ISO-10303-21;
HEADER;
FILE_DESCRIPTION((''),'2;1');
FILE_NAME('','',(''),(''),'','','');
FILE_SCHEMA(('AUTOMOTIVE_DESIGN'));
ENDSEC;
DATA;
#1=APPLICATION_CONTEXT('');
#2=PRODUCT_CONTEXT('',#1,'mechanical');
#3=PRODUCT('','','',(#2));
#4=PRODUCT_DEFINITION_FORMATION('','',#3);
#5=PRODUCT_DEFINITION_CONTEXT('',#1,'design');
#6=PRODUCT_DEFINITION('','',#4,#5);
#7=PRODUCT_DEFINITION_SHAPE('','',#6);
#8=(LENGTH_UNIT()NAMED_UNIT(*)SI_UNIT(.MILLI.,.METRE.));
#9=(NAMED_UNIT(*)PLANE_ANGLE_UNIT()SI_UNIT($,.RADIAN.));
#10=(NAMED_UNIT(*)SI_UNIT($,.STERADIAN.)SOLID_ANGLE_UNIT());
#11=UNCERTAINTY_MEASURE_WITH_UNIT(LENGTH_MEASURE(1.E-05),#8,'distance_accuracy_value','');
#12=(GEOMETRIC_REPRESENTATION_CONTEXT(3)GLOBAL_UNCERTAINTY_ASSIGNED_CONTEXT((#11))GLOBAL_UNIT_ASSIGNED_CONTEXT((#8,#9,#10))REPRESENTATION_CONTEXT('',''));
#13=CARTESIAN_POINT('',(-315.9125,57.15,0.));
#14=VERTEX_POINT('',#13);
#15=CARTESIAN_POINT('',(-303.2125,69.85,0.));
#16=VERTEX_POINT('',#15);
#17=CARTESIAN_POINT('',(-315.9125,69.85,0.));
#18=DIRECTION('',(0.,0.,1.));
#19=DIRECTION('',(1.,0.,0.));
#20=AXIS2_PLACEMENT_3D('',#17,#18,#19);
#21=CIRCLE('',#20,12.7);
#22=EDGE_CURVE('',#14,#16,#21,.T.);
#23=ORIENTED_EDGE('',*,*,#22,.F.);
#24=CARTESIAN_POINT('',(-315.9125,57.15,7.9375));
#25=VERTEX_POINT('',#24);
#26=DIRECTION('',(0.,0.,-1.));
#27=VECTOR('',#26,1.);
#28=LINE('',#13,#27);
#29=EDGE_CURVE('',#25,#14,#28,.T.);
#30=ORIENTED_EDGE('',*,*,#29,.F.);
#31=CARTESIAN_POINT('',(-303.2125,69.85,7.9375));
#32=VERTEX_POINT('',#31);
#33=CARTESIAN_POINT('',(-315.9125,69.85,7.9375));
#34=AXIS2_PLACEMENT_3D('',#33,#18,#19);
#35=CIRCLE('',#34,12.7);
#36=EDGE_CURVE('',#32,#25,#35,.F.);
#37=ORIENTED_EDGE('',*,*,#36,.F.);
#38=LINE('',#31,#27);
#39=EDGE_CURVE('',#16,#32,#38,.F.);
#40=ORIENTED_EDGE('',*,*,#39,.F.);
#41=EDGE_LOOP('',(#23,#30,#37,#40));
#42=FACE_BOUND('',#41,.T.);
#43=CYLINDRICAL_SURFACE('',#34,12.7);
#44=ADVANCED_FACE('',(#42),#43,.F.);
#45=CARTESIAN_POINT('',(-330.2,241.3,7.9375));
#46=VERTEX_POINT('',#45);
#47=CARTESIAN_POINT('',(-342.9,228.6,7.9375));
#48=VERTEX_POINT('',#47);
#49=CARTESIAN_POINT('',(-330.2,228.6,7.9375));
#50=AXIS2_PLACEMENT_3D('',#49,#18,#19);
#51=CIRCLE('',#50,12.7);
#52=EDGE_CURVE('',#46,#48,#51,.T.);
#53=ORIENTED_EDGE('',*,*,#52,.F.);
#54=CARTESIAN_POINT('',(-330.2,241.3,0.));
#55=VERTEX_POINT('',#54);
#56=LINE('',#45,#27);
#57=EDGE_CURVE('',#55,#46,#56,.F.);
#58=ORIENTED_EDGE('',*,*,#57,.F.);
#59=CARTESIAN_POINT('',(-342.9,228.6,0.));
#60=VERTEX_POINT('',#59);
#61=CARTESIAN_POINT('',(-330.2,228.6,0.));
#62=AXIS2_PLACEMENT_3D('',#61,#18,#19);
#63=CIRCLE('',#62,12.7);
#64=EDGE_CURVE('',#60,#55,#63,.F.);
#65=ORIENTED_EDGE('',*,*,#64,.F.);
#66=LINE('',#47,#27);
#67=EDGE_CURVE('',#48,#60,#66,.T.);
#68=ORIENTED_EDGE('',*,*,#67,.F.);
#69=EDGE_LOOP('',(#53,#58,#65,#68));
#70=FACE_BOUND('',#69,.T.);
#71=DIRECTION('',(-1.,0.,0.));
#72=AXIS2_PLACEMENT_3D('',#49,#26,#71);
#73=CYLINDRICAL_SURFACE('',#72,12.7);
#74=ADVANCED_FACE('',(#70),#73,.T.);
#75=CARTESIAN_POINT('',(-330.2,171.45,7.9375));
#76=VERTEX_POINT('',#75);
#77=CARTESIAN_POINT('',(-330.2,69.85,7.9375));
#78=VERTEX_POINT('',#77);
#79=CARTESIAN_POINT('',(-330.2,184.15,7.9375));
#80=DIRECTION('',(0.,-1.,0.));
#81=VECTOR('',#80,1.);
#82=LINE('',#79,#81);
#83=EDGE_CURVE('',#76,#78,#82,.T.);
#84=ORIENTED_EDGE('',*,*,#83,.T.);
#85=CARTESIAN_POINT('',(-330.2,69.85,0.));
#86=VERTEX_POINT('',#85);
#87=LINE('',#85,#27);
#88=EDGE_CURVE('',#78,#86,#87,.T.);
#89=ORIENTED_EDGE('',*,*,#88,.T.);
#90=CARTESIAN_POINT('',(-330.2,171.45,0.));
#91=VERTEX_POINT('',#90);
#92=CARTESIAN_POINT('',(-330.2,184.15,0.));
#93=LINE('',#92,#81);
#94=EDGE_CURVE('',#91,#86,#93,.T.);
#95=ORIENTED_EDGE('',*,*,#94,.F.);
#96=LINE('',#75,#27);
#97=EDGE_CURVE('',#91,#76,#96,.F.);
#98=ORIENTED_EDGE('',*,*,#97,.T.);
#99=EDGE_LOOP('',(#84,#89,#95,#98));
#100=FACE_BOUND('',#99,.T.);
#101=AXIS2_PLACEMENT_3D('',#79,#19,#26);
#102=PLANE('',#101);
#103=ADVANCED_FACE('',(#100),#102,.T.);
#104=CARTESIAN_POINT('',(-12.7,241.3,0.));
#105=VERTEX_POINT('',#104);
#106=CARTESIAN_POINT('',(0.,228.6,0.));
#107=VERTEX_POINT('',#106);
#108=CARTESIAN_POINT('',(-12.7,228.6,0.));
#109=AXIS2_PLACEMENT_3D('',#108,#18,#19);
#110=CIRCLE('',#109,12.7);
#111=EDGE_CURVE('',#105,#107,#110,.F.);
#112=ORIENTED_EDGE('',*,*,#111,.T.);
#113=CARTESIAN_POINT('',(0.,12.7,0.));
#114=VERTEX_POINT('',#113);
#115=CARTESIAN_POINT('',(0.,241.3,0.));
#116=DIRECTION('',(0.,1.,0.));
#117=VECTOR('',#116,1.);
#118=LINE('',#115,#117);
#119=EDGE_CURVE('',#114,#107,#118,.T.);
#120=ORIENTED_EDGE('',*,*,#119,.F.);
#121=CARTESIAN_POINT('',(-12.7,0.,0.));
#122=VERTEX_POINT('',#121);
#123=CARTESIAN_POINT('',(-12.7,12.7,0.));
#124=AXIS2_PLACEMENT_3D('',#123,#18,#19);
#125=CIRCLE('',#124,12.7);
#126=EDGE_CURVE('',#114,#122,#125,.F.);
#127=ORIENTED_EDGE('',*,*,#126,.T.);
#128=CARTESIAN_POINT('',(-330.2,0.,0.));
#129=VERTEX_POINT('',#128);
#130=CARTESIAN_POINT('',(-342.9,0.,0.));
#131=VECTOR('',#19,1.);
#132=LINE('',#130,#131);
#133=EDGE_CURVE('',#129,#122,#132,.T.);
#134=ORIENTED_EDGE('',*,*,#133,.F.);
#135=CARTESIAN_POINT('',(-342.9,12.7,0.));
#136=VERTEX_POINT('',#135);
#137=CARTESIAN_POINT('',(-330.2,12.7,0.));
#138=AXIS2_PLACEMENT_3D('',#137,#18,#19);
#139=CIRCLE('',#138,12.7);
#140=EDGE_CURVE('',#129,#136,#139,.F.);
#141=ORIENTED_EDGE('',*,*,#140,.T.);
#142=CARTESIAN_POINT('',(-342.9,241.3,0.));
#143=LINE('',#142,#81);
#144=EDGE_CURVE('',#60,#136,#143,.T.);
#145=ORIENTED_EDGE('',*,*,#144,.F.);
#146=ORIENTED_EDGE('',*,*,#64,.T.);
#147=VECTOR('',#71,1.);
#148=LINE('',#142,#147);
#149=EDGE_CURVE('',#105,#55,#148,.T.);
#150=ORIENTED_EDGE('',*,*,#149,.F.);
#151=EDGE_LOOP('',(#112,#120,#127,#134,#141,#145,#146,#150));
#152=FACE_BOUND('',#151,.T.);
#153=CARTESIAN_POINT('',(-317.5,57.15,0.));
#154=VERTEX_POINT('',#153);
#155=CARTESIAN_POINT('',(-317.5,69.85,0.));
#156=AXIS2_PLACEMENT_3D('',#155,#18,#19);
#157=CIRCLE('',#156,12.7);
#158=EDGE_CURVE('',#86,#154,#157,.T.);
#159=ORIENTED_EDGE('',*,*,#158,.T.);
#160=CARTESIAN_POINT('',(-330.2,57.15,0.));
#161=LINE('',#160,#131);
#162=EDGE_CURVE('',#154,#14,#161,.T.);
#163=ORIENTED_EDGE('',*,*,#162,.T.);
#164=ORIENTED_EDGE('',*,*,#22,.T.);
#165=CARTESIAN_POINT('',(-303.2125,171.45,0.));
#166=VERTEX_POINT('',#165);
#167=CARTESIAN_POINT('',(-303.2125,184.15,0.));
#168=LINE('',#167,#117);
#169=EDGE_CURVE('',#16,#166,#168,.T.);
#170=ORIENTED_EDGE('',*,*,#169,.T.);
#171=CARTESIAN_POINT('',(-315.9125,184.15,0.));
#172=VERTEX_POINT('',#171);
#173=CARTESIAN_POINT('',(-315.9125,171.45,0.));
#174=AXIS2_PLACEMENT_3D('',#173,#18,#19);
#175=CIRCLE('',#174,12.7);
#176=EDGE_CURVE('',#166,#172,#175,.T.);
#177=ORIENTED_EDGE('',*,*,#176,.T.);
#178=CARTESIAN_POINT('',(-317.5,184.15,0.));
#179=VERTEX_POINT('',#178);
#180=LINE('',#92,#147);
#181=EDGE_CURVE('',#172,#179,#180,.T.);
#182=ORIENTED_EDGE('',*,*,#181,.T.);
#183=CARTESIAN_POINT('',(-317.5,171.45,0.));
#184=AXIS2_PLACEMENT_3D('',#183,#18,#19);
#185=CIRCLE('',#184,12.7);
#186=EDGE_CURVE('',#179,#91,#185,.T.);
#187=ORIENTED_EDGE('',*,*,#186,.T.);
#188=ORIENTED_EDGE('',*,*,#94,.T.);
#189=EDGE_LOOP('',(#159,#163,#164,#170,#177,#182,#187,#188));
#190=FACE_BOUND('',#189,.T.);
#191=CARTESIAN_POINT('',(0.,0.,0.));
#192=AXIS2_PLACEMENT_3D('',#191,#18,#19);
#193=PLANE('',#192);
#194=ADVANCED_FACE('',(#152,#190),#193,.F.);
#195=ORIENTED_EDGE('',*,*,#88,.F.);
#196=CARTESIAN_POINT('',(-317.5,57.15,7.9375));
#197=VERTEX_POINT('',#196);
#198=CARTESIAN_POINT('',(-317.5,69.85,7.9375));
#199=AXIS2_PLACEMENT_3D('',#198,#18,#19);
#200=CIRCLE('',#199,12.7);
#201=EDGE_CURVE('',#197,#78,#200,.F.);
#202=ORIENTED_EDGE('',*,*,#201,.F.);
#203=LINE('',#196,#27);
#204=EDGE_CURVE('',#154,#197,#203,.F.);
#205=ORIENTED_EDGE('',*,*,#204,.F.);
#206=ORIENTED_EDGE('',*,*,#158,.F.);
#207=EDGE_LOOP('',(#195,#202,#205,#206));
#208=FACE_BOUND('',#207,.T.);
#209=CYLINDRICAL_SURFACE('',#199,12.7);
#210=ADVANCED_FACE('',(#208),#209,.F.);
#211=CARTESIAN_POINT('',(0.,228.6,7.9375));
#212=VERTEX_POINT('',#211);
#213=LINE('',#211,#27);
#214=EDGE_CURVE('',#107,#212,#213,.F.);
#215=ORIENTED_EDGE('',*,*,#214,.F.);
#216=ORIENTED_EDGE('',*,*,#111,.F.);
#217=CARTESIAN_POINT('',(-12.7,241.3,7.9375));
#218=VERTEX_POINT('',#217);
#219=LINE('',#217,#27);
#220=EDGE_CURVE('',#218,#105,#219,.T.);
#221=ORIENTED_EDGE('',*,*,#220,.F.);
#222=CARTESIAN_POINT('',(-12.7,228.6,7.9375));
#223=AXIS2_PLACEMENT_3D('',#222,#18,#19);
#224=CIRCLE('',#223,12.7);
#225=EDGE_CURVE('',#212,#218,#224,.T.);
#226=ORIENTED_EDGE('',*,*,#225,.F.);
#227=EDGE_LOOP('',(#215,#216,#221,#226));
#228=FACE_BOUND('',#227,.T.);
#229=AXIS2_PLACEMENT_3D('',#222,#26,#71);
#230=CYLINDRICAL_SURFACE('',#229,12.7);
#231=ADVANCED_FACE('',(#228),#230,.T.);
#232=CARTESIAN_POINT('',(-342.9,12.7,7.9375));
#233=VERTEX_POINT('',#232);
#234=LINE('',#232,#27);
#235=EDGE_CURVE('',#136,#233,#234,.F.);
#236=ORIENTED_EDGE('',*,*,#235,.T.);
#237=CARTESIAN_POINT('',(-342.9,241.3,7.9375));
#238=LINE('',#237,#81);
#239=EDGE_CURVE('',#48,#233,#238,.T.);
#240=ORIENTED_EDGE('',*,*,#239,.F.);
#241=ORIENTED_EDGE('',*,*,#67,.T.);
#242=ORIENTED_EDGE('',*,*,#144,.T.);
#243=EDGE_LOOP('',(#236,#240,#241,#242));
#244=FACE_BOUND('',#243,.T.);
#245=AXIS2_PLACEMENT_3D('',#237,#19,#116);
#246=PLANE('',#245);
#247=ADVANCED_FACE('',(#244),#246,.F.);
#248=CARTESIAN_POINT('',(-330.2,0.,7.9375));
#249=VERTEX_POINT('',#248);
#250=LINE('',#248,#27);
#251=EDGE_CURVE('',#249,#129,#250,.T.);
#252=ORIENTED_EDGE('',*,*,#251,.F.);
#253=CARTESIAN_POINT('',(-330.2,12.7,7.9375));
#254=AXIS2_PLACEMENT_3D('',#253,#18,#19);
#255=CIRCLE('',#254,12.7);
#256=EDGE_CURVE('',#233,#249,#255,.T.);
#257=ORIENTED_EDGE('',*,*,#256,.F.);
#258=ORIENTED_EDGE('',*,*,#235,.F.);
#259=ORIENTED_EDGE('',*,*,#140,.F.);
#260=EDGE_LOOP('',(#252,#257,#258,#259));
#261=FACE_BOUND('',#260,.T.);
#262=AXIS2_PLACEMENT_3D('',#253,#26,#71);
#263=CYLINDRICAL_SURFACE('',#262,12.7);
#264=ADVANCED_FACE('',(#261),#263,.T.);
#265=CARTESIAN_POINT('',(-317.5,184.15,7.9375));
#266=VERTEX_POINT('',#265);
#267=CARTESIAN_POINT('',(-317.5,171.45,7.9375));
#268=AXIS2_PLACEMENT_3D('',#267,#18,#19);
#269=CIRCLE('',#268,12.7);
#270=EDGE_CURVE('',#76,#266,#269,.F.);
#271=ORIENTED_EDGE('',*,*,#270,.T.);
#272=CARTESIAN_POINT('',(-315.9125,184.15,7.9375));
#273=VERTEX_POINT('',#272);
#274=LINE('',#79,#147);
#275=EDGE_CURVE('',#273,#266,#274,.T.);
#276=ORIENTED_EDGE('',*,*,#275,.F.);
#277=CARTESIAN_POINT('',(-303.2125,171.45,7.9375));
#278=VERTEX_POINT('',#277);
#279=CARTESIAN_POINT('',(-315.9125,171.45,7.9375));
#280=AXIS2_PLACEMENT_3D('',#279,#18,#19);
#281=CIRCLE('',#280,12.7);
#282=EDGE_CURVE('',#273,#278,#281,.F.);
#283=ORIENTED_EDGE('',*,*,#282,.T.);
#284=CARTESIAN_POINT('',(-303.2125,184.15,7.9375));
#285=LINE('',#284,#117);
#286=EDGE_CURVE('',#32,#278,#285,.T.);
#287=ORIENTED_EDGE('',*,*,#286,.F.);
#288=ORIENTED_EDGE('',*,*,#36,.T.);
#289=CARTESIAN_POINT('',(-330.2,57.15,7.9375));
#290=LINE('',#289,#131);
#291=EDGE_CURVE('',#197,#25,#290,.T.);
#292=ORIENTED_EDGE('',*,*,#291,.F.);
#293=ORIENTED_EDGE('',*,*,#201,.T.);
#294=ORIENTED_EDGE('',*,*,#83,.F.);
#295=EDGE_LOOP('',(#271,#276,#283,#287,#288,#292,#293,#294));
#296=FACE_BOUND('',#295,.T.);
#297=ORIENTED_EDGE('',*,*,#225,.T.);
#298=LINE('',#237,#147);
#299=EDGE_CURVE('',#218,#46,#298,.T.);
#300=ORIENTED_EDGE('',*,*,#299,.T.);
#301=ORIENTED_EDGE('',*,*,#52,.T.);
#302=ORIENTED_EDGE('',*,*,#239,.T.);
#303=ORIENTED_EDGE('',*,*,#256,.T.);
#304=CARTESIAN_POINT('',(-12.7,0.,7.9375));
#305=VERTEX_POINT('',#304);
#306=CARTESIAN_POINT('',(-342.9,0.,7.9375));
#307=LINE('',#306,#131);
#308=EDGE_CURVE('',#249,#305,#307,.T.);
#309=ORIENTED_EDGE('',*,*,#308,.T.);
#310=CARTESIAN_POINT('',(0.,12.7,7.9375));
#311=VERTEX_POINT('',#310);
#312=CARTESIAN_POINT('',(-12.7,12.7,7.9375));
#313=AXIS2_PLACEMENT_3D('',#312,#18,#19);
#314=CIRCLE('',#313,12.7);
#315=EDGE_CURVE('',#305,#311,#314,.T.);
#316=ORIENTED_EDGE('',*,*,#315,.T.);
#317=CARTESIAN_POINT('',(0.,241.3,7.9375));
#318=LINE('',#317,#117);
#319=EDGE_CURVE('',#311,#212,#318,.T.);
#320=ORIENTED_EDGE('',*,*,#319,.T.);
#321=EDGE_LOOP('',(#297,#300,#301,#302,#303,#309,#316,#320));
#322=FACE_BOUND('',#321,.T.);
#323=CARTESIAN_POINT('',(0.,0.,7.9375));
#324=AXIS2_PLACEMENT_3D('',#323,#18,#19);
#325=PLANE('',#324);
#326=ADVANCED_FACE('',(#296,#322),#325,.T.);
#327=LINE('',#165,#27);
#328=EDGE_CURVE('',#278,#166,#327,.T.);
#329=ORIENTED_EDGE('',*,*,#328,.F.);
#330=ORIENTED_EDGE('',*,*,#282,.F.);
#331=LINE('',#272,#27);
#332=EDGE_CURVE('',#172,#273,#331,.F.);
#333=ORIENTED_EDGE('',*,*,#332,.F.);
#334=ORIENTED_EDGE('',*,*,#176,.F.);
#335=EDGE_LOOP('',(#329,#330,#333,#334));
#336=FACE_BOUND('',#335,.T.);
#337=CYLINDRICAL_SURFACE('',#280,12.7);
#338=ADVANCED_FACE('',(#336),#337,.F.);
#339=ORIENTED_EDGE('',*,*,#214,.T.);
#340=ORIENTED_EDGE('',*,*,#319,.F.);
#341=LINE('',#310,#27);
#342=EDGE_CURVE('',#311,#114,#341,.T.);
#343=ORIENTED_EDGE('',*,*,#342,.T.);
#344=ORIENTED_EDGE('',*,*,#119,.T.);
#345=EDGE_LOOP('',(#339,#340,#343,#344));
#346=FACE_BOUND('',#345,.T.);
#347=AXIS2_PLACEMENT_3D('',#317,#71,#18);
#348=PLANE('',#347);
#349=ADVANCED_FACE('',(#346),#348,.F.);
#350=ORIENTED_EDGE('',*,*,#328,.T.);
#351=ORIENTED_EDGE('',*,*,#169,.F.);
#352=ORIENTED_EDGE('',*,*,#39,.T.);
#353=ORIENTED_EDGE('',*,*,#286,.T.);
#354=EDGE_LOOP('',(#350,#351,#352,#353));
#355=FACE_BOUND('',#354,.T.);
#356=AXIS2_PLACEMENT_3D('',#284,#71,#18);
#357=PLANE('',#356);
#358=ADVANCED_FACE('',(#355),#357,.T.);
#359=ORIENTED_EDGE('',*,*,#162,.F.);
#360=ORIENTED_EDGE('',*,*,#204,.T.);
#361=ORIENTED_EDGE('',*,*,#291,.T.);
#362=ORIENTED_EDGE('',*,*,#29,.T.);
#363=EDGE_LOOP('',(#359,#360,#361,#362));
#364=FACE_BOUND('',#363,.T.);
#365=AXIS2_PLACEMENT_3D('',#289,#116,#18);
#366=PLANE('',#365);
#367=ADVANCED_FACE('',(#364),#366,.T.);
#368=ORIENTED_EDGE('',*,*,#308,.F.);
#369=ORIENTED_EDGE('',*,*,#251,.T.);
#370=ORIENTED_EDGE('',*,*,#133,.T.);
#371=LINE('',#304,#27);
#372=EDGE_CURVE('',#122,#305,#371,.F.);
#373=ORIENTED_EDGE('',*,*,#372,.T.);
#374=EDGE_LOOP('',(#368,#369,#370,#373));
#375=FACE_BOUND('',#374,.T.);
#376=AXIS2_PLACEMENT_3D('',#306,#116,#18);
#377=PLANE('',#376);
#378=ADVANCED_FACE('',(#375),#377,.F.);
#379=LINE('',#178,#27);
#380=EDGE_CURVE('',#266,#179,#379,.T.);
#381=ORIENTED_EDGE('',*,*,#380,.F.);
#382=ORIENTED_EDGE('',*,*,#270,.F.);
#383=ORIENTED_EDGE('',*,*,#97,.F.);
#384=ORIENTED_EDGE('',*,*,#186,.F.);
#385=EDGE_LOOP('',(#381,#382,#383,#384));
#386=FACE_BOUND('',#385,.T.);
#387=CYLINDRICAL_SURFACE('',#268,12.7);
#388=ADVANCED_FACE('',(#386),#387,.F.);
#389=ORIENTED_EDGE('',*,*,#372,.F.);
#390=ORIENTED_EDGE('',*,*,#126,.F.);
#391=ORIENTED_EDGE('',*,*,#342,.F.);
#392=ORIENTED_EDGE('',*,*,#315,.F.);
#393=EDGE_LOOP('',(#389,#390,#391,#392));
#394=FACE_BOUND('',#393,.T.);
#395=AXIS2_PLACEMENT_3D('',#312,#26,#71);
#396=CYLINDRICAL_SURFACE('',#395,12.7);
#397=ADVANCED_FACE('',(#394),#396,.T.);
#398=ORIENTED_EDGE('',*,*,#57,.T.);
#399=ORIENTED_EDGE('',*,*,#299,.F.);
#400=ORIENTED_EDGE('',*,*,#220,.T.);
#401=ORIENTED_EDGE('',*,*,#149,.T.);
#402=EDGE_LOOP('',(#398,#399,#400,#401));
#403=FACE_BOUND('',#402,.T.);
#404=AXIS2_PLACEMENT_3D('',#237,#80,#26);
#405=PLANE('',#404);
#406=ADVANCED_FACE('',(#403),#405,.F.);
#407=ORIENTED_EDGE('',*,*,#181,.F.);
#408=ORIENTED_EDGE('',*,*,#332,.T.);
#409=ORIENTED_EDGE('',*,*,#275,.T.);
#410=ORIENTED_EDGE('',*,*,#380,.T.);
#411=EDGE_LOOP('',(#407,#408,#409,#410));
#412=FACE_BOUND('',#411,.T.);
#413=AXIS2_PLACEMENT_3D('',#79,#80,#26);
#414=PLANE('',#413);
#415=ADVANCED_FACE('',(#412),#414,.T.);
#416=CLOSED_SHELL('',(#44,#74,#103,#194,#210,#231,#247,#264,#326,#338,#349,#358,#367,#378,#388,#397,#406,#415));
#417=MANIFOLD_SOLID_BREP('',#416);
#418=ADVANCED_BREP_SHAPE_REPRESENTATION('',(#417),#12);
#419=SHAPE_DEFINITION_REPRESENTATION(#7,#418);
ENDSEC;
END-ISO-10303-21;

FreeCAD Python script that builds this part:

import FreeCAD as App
import Part
import Sketcher
from FreeCAD import Vector
Q = App.Units.Quantity


def edges_at(feature, points):
    """Names of the edges that pass closest to the given points."""
    edges = feature.Shape.Edges
    near = lambda p: min(range(len(edges)), key=lambda i: edges[i].distToShape(Part.Vertex(*p))[0])
    return sorted({f"Edge{near(p) + 1}" for p in points})


def add_polygon(sketch, points):
    """Adds a closed chain of lines whose ends are joined by coincident constraints."""
    first, n = sketch.GeometryCount, len(points)
    for a, b in zip(points, points[1:] + points[:1]):
        sketch.addGeometry(Part.LineSegment(App.Vector(*a, 0), App.Vector(*b, 0)), False)
    for i in range(n):
        sketch.addConstraint(Sketcher.Constraint("Coincident", first + i, 2, first + (i + 1) % n, 1))

doc = App.newDocument("Part")
body = doc.addObject("PartDesign::Body", "Body")

sketch1 = body.newObject("Sketcher::SketchObject", "Sketch")
sketch1.AttachmentSupport = (doc.getObject("XY_Plane"), [""])
sketch1.MapMode = "FlatFace"
add_polygon(sketch1, [(-343, 241), (-343, 0), (0, 0), (0, 241)])
add_polygon(sketch1, [(-303, 57), (-330, 57), (-330, 184), (-303, 184)])
sketch1.addConstraint(Sketcher.Constraint("Vertical", 0))
sketch1.addConstraint(Sketcher.Constraint("Horizontal", 1))
sketch1.addConstraint(Sketcher.Constraint("Vertical", 2))
sketch1.addConstraint(Sketcher.Constraint("Horizontal", 3))
sketch1.addConstraint(Sketcher.Constraint("Horizontal", 4))
sketch1.addConstraint(Sketcher.Constraint("Vertical", 5))
sketch1.addConstraint(Sketcher.Constraint("Horizontal", 6))
sketch1.addConstraint(Sketcher.Constraint("Vertical", 7))
sketch1.addConstraint(Sketcher.Constraint("Coincident", 1, 2, -1, 1))
sketch1.addConstraint(Sketcher.Constraint("DistanceY", 5, 1, 5, 2, Q("5 in")))
sketch1.addConstraint(Sketcher.Constraint("DistanceX", 1, 1, 1, 2, Q("13.5 in")))
sketch1.addConstraint(Sketcher.Constraint("DistanceY", 0, 2, 0, 1, Q("9.5 in")))
sketch1.addConstraint(Sketcher.Constraint("DistanceX", 4, 2, -1, 1, Q("13 in")))
sketch1.addConstraint(Sketcher.Constraint("DistanceX", 4, 2, 4, 1, Q("1.0625 in")))
sketch1.addConstraint(Sketcher.Constraint("DistanceY", -1, 1, 4, 2, Q("2.25 in")))
pad1 = body.newObject("PartDesign::Pad", "Pad")
pad1.Profile = sketch1
pad1.Length = Q("0.3125 in")
doc.recompute()

fillet = body.newObject("PartDesign::Fillet", "Fillet")
fillet.Base = (pad1, edges_at(pad1, [
    (-330.2, 184.15, 3.969),
    (-330.2, 57.15, 3.969),
    (-303.212, 57.15, 3.969),
    (-303.212, 184.15, 3.969),
    (-342.9, 241.3, 3.969),
    (0, 241.3, 3.969),
    (0, 0, 3.969),
    (-342.9, 0, 3.969),
]))
fillet.Radius = Q("0.5 in")

doc.recompute()
